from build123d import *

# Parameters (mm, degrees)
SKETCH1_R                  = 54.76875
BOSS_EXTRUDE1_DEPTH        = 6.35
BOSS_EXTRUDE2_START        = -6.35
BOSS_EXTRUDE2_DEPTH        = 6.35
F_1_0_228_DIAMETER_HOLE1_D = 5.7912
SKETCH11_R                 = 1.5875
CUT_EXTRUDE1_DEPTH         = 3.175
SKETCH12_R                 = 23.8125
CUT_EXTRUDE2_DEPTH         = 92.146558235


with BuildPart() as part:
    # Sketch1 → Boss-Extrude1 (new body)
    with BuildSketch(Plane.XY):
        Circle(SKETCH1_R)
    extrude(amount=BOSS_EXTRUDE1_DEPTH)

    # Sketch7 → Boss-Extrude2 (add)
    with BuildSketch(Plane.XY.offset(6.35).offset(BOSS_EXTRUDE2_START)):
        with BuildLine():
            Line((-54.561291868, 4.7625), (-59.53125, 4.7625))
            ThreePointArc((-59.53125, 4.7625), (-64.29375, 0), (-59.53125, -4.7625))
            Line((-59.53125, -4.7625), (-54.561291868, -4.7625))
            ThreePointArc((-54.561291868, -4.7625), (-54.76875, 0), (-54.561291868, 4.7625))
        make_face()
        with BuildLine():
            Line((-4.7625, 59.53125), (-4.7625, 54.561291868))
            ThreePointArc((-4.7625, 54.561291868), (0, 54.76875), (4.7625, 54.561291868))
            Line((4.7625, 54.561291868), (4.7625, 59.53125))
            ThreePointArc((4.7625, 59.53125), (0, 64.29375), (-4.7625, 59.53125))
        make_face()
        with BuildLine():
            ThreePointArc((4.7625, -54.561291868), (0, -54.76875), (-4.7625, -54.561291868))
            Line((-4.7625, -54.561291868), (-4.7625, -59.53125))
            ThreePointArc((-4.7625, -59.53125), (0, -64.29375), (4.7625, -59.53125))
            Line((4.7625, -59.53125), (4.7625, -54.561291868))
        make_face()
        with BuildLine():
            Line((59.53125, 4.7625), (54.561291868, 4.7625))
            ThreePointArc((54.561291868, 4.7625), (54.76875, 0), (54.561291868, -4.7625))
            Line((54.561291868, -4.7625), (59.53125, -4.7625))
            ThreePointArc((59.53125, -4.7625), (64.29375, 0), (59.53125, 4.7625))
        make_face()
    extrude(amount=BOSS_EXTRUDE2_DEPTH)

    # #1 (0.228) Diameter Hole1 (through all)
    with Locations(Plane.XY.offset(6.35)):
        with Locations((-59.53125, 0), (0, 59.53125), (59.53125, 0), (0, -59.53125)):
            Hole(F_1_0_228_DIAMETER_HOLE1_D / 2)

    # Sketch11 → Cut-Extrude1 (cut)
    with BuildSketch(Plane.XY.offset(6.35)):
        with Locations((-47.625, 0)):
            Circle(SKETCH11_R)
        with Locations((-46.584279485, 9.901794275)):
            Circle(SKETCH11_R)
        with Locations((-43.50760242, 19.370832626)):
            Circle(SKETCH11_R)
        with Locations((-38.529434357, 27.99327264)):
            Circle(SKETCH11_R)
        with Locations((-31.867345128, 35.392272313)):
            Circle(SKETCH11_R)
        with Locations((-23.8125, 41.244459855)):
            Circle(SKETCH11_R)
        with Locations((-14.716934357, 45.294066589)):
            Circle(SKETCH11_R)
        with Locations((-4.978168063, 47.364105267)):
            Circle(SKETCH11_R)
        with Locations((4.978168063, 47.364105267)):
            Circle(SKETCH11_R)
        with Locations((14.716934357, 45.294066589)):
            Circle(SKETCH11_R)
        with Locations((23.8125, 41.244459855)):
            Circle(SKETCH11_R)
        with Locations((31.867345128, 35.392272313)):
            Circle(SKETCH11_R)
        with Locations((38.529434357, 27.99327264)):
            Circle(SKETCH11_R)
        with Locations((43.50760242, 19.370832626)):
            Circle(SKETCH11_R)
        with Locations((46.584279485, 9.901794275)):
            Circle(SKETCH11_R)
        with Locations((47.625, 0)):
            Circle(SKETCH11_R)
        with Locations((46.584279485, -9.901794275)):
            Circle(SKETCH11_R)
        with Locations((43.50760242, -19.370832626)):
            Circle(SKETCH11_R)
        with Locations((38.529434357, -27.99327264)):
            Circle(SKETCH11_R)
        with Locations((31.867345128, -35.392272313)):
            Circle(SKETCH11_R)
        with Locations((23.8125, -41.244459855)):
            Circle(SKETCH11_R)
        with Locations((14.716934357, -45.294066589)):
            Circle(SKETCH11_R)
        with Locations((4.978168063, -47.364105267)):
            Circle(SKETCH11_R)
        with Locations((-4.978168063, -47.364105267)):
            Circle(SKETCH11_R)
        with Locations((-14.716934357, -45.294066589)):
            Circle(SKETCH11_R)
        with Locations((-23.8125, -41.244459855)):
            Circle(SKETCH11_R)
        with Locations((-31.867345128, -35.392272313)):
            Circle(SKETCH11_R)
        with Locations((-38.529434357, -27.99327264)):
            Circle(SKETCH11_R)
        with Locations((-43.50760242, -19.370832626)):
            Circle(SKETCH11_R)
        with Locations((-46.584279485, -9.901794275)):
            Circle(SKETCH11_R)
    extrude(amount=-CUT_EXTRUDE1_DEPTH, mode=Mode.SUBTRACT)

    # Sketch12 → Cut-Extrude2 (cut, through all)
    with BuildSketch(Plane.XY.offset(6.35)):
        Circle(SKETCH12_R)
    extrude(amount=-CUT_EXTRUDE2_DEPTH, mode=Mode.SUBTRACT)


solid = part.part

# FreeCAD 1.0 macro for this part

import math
import FreeCAD as App
import Part
import Sketcher

V = App.Vector
Q = App.Units.Quantity

doc = App.newDocument("Part")
body = doc.addObject("PartDesign::Body", "Body")

sketch1 = doc.addObject("Sketcher::SketchObject", "Sketch")
body.addObject(sketch1)
sketch1.AttachmentSupport = (doc.XY_Plane, [""])
sketch1.MapMode = "FlatFace"
sketch1.addGeometry(Part.Circle(V(0, 0, 0), V(0, 0, 1), 55), False)
sketch1.addConstraint([
    Sketcher.Constraint("Coincident", 0, 3, -1, 1),
    Sketcher.Constraint("Diameter", 0, Q("4.3125 in")),
])
pad1 = doc.addObject("PartDesign::Pad", "Pad")
body.addObject(pad1)
pad1.Profile = sketch1
pad1.Length = Q("0.25 in")

sketch2 = doc.addObject("Sketcher::SketchObject", "Sketch001")
body.addObject(sketch2)
sketch2.AttachmentSupport = (doc.XY_Plane, [""])
sketch2.MapMode = "FlatFace"
sketch2.addGeometry([
    Part.LineSegment(V(-54.6, 4.8, 0), V(-59.5, 4.8, 0)),
    Part.ArcOfCircle(Part.Circle(V(-59.5, 0, 0), V(0, 0, 1), 4.8), math.radians(90), math.radians(270)),
    Part.LineSegment(V(-59.5, -4.8, 0), V(-54.6, -4.8, 0)),
    Part.ArcOfCircle(Part.Circle(V(0, 0, 0), V(0, 0, 1), 54.8), math.radians(175.01), math.radians(184.99)),
    Part.LineSegment(V(-4.8, 59.5, 0), V(-4.8, 54.6, 0)),
    Part.ArcOfCircle(Part.Circle(V(0, 0, 0), V(0, 0, 1), 54.8), math.radians(85.01), math.radians(94.99)),
    Part.LineSegment(V(4.8, 54.6, 0), V(4.8, 59.5, 0)),
    Part.ArcOfCircle(Part.Circle(V(0, 59.5, 0), V(0, 0, 1), 4.8), math.radians(0), math.radians(180)),
    Part.ArcOfCircle(Part.Circle(V(0, 0, 0), V(0, 0, 1), 54.8), math.radians(-94.99), math.radians(-85.01)),
    Part.LineSegment(V(-4.8, -54.6, 0), V(-4.8, -59.5, 0)),
    Part.ArcOfCircle(Part.Circle(V(0, -59.5, 0), V(0, 0, 1), 4.8), math.radians(180), math.radians(360)),
    Part.LineSegment(V(4.8, -59.5, 0), V(4.8, -54.6, 0)),
    Part.LineSegment(V(59.5, 4.8, 0), V(54.6, 4.8, 0)),
    Part.ArcOfCircle(Part.Circle(V(0, 0, 0), V(0, 0, 1), 54.8), math.radians(-4.99), math.radians(4.99)),
    Part.LineSegment(V(54.6, -4.8, 0), V(59.5, -4.8, 0)),
    Part.ArcOfCircle(Part.Circle(V(59.5, 0, 0), V(0, 0, 1), 4.8), math.radians(-90), math.radians(90)),
], False)
sketch2.addConstraint([
    Sketcher.Constraint("Tangent", 0, 2, 1, 1),
    Sketcher.Constraint("Tangent", 1, 2, 2, 1),
    Sketcher.Constraint("Coincident", 2, 2, 3, 2),
    Sketcher.Constraint("Coincident", 3, 1, 0, 1),
    Sketcher.Constraint("Coincident", 4, 2, 5, 2),
    Sketcher.Constraint("Coincident", 5, 1, 6, 1),
    Sketcher.Constraint("Tangent", 6, 2, 7, 1),
    Sketcher.Constraint("Tangent", 7, 2, 4, 1),
    Sketcher.Constraint("Coincident", 8, 1, 9, 1),
    Sketcher.Constraint("Tangent", 9, 2, 10, 1),
    Sketcher.Constraint("Tangent", 10, 2, 11, 1),
    Sketcher.Constraint("Coincident", 11, 2, 8, 2),
    Sketcher.Constraint("Coincident", 12, 2, 13, 2),
    Sketcher.Constraint("Coincident", 13, 1, 14, 1),
    Sketcher.Constraint("Tangent", 14, 2, 15, 1),
    Sketcher.Constraint("Tangent", 15, 2, 12, 1),
    Sketcher.Constraint("Horizontal", 0),
    Sketcher.Constraint("Horizontal", 2),
    Sketcher.Constraint("Vertical", 4),
    Sketcher.Constraint("Vertical", 6),
    Sketcher.Constraint("Vertical", 9),
    Sketcher.Constraint("Vertical", 11),
    Sketcher.Constraint("Horizontal", 12),
    Sketcher.Constraint("Horizontal", 14),
    Sketcher.Constraint("Coincident", 3, 3, -1, 1),
    Sketcher.Constraint("Coincident", 5, 3, -1, 1),
    Sketcher.Constraint("Coincident", 8, 3, -1, 1),
    Sketcher.Constraint("Coincident", 13, 3, -1, 1),
    Sketcher.Constraint("Equal", 3, 5),
    Sketcher.Constraint("Equal", 1, 7),
    Sketcher.Constraint("Equal", 5, 8),
    Sketcher.Constraint("Equal", 7, 10),
    Sketcher.Constraint("Equal", 8, 13),
    Sketcher.Constraint("Equal", 10, 15),
    Sketcher.Constraint("Symmetric", 7, 3, 10, 3, -1, 1),
    Sketcher.Constraint("Symmetric", 1, 3, 15, 3, -1, 1),
    Sketcher.Constraint("PointOnObject", 1, 3, -1),
    Sketcher.Constraint("PointOnObject", 7, 3, -2),
    Sketcher.Constraint("Equal", 14, 4),
    Sketcher.Constraint("Radius", 1, Q("0.1875 in")),
    Sketcher.Constraint("Radius", 3, Q("2.15625 in")),
    Sketcher.Constraint("DistanceX", 1, 3, -1, 1, Q("2.34375 in")),
])
pad2 = doc.addObject("PartDesign::Pad", "Pad001")
body.addObject(pad2)
pad2.Profile = sketch2
pad2.Length = Q("0.25 in")

sketch3 = doc.addObject("Sketcher::SketchObject", "Sketch002")
body.addObject(sketch3)
sketch3.AttachmentSupport = (doc.XY_Plane, [""])
sketch3.MapMode = "FlatFace"
sketch3.AttachmentOffset = App.Placement(V(0, 0, 0.25 * 25.4), App.Rotation())
sketch3.addGeometry([
    Part.Circle(V(-59.5, 0, 0), V(0, 0, 1), 2.9),
    Part.Circle(V(0, 59.5, 0), V(0, 0, 1), 2.9),
    Part.Circle(V(59.5, 0, 0), V(0, 0, 1), 2.9),
    Part.Circle(V(0, -59.5, 0), V(0, 0, 1), 2.9),
], False)
sketch3.addConstraint([
    Sketcher.Constraint("Equal", 0, 1),
    Sketcher.Constraint("Equal", 1, 2),
    Sketcher.Constraint("Equal", 2, 3),
    Sketcher.Constraint("Symmetric", 0, 3, 2, 3, -1, 1),
    Sketcher.Constraint("Symmetric", 1, 3, 3, 3, -1, 1),
    Sketcher.Constraint("PointOnObject", 0, 3, -1),
    Sketcher.Constraint("PointOnObject", 1, 3, -2),
    Sketcher.Constraint("Diameter", 0, Q("0.228 in")),
    Sketcher.Constraint("DistanceX", 0, 3, -1, 1, Q("2.34375 in")),
    Sketcher.Constraint("DistanceY", -1, 1, 1, 3, Q("2.34375 in")),
])
doc.recompute()
hole = doc.addObject("PartDesign::Hole", "Hole")
body.addObject(hole)
hole.Profile = sketch3
hole.ThreadType = "None"
hole.Diameter = Q("0.228 in")
hole.DepthType = "ThroughAll"

sketch4 = doc.addObject("Sketcher::SketchObject", "Sketch003")
body.addObject(sketch4)
sketch4.AttachmentSupport = (doc.XY_Plane, [""])
sketch4.MapMode = "FlatFace"
sketch4.AttachmentOffset = App.Placement(V(0, 0, 0.25 * 25.4), App.Rotation())
sketch4.addGeometry([
    Part.Circle(V(-47.6, 0, 0), V(0, 0, 1), 1.6),
    Part.Circle(V(-46.6, 9.9, 0), V(0, 0, 1), 1.6),
    Part.Circle(V(-43.5, 19.4, 0), V(0, 0, 1), 1.6),
    Part.Circle(V(-38.5, 28, 0), V(0, 0, 1), 1.6),
    Part.Circle(V(-31.9, 35.4, 0), V(0, 0, 1), 1.6),
    Part.Circle(V(-23.8, 41.2, 0), V(0, 0, 1), 1.6),
    Part.Circle(V(-14.7, 45.3, 0), V(0, 0, 1), 1.6),
    Part.Circle(V(-5, 47.4, 0), V(0, 0, 1), 1.6),
    Part.Circle(V(5, 47.4, 0), V(0, 0, 1), 1.6),
    Part.Circle(V(14.7, 45.3, 0), V(0, 0, 1), 1.6),
    Part.Circle(V(23.8, 41.2, 0), V(0, 0, 1), 1.6),
    Part.Circle(V(31.9, 35.4, 0), V(0, 0, 1), 1.6),
    Part.Circle(V(38.5, 28, 0), V(0, 0, 1), 1.6),
    Part.Circle(V(43.5, 19.4, 0), V(0, 0, 1), 1.6),
    Part.Circle(V(46.6, 9.9, 0), V(0, 0, 1), 1.6),
    Part.Circle(V(47.6, 0, 0), V(0, 0, 1), 1.6),
    Part.Circle(V(46.6, -9.9, 0), V(0, 0, 1), 1.6),
    Part.Circle(V(43.5, -19.4, 0), V(0, 0, 1), 1.6),
    Part.Circle(V(38.5, -28, 0), V(0, 0, 1), 1.6),
    Part.Circle(V(31.9, -35.4, 0), V(0, 0, 1), 1.6),
    Part.Circle(V(23.8, -41.2, 0), V(0, 0, 1), 1.6),
    Part.Circle(V(14.7, -45.3, 0), V(0, 0, 1), 1.6),
    Part.Circle(V(5, -47.4, 0), V(0, 0, 1), 1.6),
    Part.Circle(V(-5, -47.4, 0), V(0, 0, 1), 1.6),
    Part.Circle(V(-14.7, -45.3, 0), V(0, 0, 1), 1.6),
    Part.Circle(V(-23.8, -41.2, 0), V(0, 0, 1), 1.6),
    Part.Circle(V(-31.9, -35.4, 0), V(0, 0, 1), 1.6),
    Part.Circle(V(-38.5, -28, 0), V(0, 0, 1), 1.6),
    Part.Circle(V(-43.5, -19.4, 0), V(0, 0, 1), 1.6),
    Part.Circle(V(-46.6, -9.9, 0), V(0, 0, 1), 1.6),
], False)
sketch4.addConstraint([
    Sketcher.Constraint("Equal", 0, 1),
    Sketcher.Constraint("Equal", 1, 2),
    Sketcher.Constraint("Equal", 2, 3),
    Sketcher.Constraint("Equal", 3, 4),
    Sketcher.Constraint("Equal", 4, 5),
    Sketcher.Constraint("Equal", 5, 6),
    Sketcher.Constraint("Equal", 6, 7),
    Sketcher.Constraint("Equal", 7, 8),
    Sketcher.Constraint("Equal", 8, 9),
    Sketcher.Constraint("Equal", 9, 10),
    Sketcher.Constraint("Equal", 10, 11),
    Sketcher.Constraint("Equal", 11, 12),
    Sketcher.Constraint("Equal", 12, 13),
    Sketcher.Constraint("Equal", 13, 14),
    Sketcher.Constraint("Equal", 14, 15),
    Sketcher.Constraint("Equal", 15, 16),
    Sketcher.Constraint("Equal", 16, 17),
    Sketcher.Constraint("Equal", 17, 18),
    Sketcher.Constraint("Equal", 18, 19),
    Sketcher.Constraint("Equal", 19, 20),
    Sketcher.Constraint("Equal", 20, 21),
    Sketcher.Constraint("Equal", 21, 22),
    Sketcher.Constraint("Equal", 22, 23),
    Sketcher.Constraint("Equal", 23, 24),
    Sketcher.Constraint("Equal", 24, 25),
    Sketcher.Constraint("Equal", 25, 26),
    Sketcher.Constraint("Equal", 26, 27),
    Sketcher.Constraint("Equal", 27, 28),
    Sketcher.Constraint("Equal", 28, 29),
    Sketcher.Constraint("Symmetric", 0, 3, 15, 3, -1, 1),
    Sketcher.Constraint("Symmetric", 1, 3, 16, 3, -1, 1),
    Sketcher.Constraint("Symmetric", 2, 3, 17, 3, -1, 1),
    Sketcher.Constraint("Symmetric", 3, 3, 18, 3, -1, 1),
    Sketcher.Constraint("Symmetric", 4, 3, 19, 3, -1, 1),
    Sketcher.Constraint("Symmetric", 5, 3, 20, 3, -1, 1),
    Sketcher.Constraint("Symmetric", 6, 3, 21, 3, -1, 1),
    Sketcher.Constraint("Symmetric", 7, 3, 22, 3, -1, 1),
    Sketcher.Constraint("Symmetric", 8, 3, 23, 3, -1, 1),
    Sketcher.Constraint("Symmetric", 9, 3, 24, 3, -1, 1),
    Sketcher.Constraint("Symmetric", 10, 3, 25, 3, -1, 1),
    Sketcher.Constraint("Symmetric", 11, 3, 26, 3, -1, 1),
    Sketcher.Constraint("Symmetric", 12, 3, 27, 3, -1, 1),
    Sketcher.Constraint("Symmetric", 13, 3, 28, 3, -1, 1),
    Sketcher.Constraint("Symmetric", 14, 3, 29, 3, -1, 1),
    Sketcher.Constraint("Symmetric", 7, 3, 8, 3, -2),
    Sketcher.Constraint("Symmetric", 6, 3, 9, 3, -2),
    Sketcher.Constraint("Symmetric", 5, 3, 10, 3, -2),
    Sketcher.Constraint("Symmetric", 4, 3, 11, 3, -2),
    Sketcher.Constraint("Symmetric", 3, 3, 12, 3, -2),
    Sketcher.Constraint("Symmetric", 2, 3, 13, 3, -2),
    Sketcher.Constraint("Symmetric", 1, 3, 14, 3, -2),
    Sketcher.Constraint("PointOnObject", 0, 3, -1),
    Sketcher.Constraint("Diameter", 0, Q("0.125 in")),
    Sketcher.Constraint("DistanceX", 0, 3, -1, 1, Q("1.875 in")),
    Sketcher.Constraint("DistanceX", 5, 3, -1, 1, Q("0.9375 in")),
    Sketcher.Constraint("DistanceX", 3, 3, 6, 3, Q("0.9375 in")),
    Sketcher.Constraint("DistanceY", 3, 3, 4, 3, 7.399),
    Sketcher.Constraint("DistanceX", 1, 3, -1, 1, 46.584279),
    Sketcher.Constraint("DistanceY", -1, 1, 5, 3, 41.24446),
    Sketcher.Constraint("DistanceX", 7, 3, -1, 1, 4.978168),
    Sketcher.Constraint("DistanceY", 1, 3, 2, 3, 9.469038),
    Sketcher.Constraint("DistanceX", 2, 3, 3, 3, 4.978168),
    Sketcher.Constraint("DistanceY", 2, 3, 3, 3, 8.62244),
    Sketcher.Constraint("DistanceX", 3, 3, 4, 3, 6.662089),
    Sketcher.Constraint("DistanceY", 6, 3, 7, 3, 2.070039),
    Sketcher.Constraint("DistanceX", 6, 3, 9, 3, 29.433869),
    Sketcher.Constraint("DistanceY", 16, 3, 14, 3, 19.803589),
    Sketcher.Constraint("DistanceY", -1, 1, 6, 3, 45.294067),
])
pocket1 = doc.addObject("PartDesign::Pocket", "Pocket")
body.addObject(pocket1)
pocket1.Profile = sketch4
pocket1.Length = Q("0.125 in")

sketch5 = doc.addObject("Sketcher::SketchObject", "Sketch004")
body.addObject(sketch5)
sketch5.AttachmentSupport = (doc.XY_Plane, [""])
sketch5.MapMode = "FlatFace"
sketch5.AttachmentOffset = App.Placement(V(0, 0, 0.25 * 25.4), App.Rotation())
sketch5.addGeometry(Part.Circle(V(0, 0, 0), V(0, 0, 1), 24), False)
sketch5.addConstraint([
    Sketcher.Constraint("Coincident", 0, 3, -1, 1),
    Sketcher.Constraint("Diameter", 0, Q("1.875 in")),
])
pocket2 = doc.addObject("PartDesign::Pocket", "Pocket001")
body.addObject(pocket2)
pocket2.Profile = sketch5
pocket2.Type = "ThroughAll"

doc.recompute()
